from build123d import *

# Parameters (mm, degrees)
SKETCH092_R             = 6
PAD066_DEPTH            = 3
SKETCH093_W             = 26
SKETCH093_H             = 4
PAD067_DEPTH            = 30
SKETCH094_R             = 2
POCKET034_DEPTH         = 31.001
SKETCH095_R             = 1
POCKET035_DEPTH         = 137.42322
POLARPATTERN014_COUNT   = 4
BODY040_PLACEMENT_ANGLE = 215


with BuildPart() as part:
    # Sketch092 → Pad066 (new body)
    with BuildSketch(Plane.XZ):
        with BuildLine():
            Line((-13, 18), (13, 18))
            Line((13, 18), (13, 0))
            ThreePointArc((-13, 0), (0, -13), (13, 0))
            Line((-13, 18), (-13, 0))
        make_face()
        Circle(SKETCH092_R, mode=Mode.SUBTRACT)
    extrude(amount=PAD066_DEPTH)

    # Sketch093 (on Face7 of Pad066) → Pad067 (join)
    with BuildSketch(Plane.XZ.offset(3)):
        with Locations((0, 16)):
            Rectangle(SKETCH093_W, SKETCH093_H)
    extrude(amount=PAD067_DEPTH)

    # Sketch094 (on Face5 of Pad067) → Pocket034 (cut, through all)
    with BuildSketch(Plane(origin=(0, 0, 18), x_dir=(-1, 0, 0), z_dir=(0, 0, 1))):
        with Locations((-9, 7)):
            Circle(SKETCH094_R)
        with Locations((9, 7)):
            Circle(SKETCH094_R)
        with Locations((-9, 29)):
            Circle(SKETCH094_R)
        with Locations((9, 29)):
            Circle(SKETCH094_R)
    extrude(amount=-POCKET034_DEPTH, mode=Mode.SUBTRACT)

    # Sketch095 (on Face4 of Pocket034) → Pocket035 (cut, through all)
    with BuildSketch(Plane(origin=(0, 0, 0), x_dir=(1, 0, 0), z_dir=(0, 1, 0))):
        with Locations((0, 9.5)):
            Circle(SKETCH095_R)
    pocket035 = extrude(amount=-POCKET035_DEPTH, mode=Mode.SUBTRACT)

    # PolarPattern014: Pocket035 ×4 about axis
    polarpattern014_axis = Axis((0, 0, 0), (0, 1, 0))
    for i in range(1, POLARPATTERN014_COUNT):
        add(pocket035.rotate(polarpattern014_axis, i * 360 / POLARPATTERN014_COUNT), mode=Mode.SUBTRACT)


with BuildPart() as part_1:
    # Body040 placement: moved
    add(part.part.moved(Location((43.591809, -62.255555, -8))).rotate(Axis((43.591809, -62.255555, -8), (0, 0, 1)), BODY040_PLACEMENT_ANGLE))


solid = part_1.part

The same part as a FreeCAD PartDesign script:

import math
import FreeCAD as App
import Part
import Sketcher
Q = App.Units.Quantity

doc = App.newDocument("Part")
body = doc.addObject("PartDesign::Body", "Body")

# Sketch on XZ plane
sketch1 = body.newObject("Sketcher::SketchObject", "Sketch")
sketch1.AttachmentSupport = (doc.getObject("XZ_Plane"), [""])
sketch1.MapMode = "FlatFace"
sketch1.addGeometry(Part.LineSegment(App.Vector(13, 18, 0), App.Vector(-13, 18, 0)), False)
sketch1.addGeometry(Part.LineSegment(App.Vector(-13, 18, 0), App.Vector(-13, 0, 0)), False)
sketch1.addGeometry(Part.ArcOfCircle(Part.Circle(App.Vector(0, 0, 0), App.Vector(0, 0, 1), 13), math.radians(180), math.radians(360)), False)
sketch1.addGeometry(Part.LineSegment(App.Vector(13, 0, 0), App.Vector(13, 18, 0)), False)
sketch1.addGeometry(Part.Circle(App.Vector(0, 0, 0), App.Vector(0, 0, 1), 6), False)
sketch1.addConstraint(Sketcher.Constraint("Coincident", 0, 2, 1, 1))
sketch1.addConstraint(Sketcher.Constraint("Tangent", 1, 2, 2, 1))
sketch1.addConstraint(Sketcher.Constraint("Tangent", 2, 2, 3, 1))
sketch1.addConstraint(Sketcher.Constraint("Coincident", 3, 2, 0, 1))
sketch1.addConstraint(Sketcher.Constraint("Horizontal", 0))
sketch1.addConstraint(Sketcher.Constraint("Vertical", 1))
sketch1.addConstraint(Sketcher.Constraint("Vertical", 3))
sketch1.addConstraint(Sketcher.Constraint("Coincident", 2, 3, -1, 1))
sketch1.addConstraint(Sketcher.Constraint("Coincident", 4, 3, -1, 1))
sketch1.addConstraint(Sketcher.Constraint("Diameter", 4, Q("12 mm")))
sketch1.addConstraint(Sketcher.Constraint("Radius", 2, Q("13 mm")))
sketch1.addConstraint(Sketcher.Constraint("DistanceY", 1, 2, 1, 1, Q("18 mm")))
pad1 = body.newObject("PartDesign::Pad", "Pad")
pad1.Profile = sketch1
pad1.Length = 3

# Sketch on XZ plane
sketch2 = body.newObject("Sketcher::SketchObject", "Sketch001")
sketch2.AttachmentSupport = (doc.getObject("XZ_Plane"), [""])
sketch2.MapMode = "FlatFace"
sketch2.AttachmentOffset = App.Placement(App.Vector(0, 0, 3), App.Rotation())
sketch2.addGeometry(Part.LineSegment(App.Vector(-13, 18, 0), App.Vector(-13, 14, 0)), False)
sketch2.addGeometry(Part.LineSegment(App.Vector(-13, 14, 0), App.Vector(13, 14, 0)), False)
sketch2.addGeometry(Part.LineSegment(App.Vector(13, 14, 0), App.Vector(13, 18, 0)), False)
sketch2.addGeometry(Part.LineSegment(App.Vector(13, 18, 0), App.Vector(-13, 18, 0)), False)
sketch2.addConstraint(Sketcher.Constraint("Coincident", 0, 2, 1, 1))
sketch2.addConstraint(Sketcher.Constraint("Coincident", 1, 2, 2, 1))
sketch2.addConstraint(Sketcher.Constraint("Coincident", 2, 2, 3, 1))
sketch2.addConstraint(Sketcher.Constraint("Coincident", 3, 2, 0, 1))
sketch2.addConstraint(Sketcher.Constraint("Vertical", 0))
sketch2.addConstraint(Sketcher.Constraint("Horizontal", 1))
sketch2.addConstraint(Sketcher.Constraint("Vertical", 2))
sketch2.addConstraint(Sketcher.Constraint("Horizontal", 3))
sketch2.addConstraint(Sketcher.Constraint("DistanceX", 1, 1, 1, 2, Q("26 mm")))
sketch2.addConstraint(Sketcher.Constraint("DistanceY", 0, 2, 0, 1, Q("4 mm")))
sketch2.addConstraint(Sketcher.Constraint("DistanceX", 0, 2, -1, 1, Q("13 mm")))
sketch2.addConstraint(Sketcher.Constraint("DistanceY", -1, 1, 0, 2, Q("14 mm")))
pad2 = body.newObject("PartDesign::Pad", "Pad001")
pad2.Profile = sketch2
pad2.Length = 30

# Sketch on XY plane
sketch3 = body.newObject("Sketcher::SketchObject", "Sketch002")
sketch3.AttachmentSupport = (doc.getObject("XY_Plane"), [""])
sketch3.MapMode = "FlatFace"
sketch3.AttachmentOffset = App.Placement(App.Vector(0, 0, 18), App.Rotation())
sketch3.addGeometry(Part.Circle(App.Vector(9, -7, 0), App.Vector(0, 0, 1), 2), False)
sketch3.addGeometry(Part.Circle(App.Vector(-9, -7, 0), App.Vector(0, 0, 1), 2), False)
sketch3.addGeometry(Part.Circle(App.Vector(9, -29, 0), App.Vector(0, 0, 1), 2), False)
sketch3.addGeometry(Part.Circle(App.Vector(-9, -29, 0), App.Vector(0, 0, 1), 2), False)
sketch3.addConstraint(Sketcher.Constraint("Equal", 0, 1))
sketch3.addConstraint(Sketcher.Constraint("Equal", 1, 2))
sketch3.addConstraint(Sketcher.Constraint("Equal", 2, 3))
sketch3.addConstraint(Sketcher.Constraint("Symmetric", 0, 3, 1, 3, -2))
sketch3.addConstraint(Sketcher.Constraint("Symmetric", 2, 3, 3, 3, -2))
sketch3.addConstraint(Sketcher.Constraint("Vertical", 0, 3, 2, 3))
sketch3.addConstraint(Sketcher.Constraint("Diameter", 0, Q("4 mm")))
sketch3.addConstraint(Sketcher.Constraint("DistanceX", -1, 1, 0, 3, Q("9 mm")))
sketch3.addConstraint(Sketcher.Constraint("DistanceY", 0, 3, -1, 1, Q("7 mm")))
sketch3.addConstraint(Sketcher.Constraint("DistanceY", 2, 3, -1, 1, Q("29 mm")))
pocket1 = body.newObject("PartDesign::Pocket", "Pocket")
pocket1.Profile = sketch3
pocket1.Type = "ThroughAll"

# Sketch on XZ plane
sketch4 = body.newObject("Sketcher::SketchObject", "Sketch003")
sketch4.AttachmentSupport = (doc.getObject("XZ_Plane"), [""])
sketch4.MapMode = "FlatFace"
sketch4.addGeometry(Part.Circle(App.Vector(0, -9.5, 0), App.Vector(0, 0, 1), 1), False)
sketch4.addConstraint(Sketcher.Constraint("PointOnObject", 0, 3, -2))
sketch4.addConstraint(Sketcher.Constraint("Diameter", 0, Q("2 mm")))
sketch4.addConstraint(Sketcher.Constraint("DistanceY", 0, 3, -1, 1, Q("9.5 mm")))
pocket2 = body.newObject("PartDesign::Pocket", "Pocket001")
pocket2.Profile = sketch4
pocket2.Type = "ThroughAll"
pocket2.Reversed = True
doc.recompute()

polarpattern = body.newObject("PartDesign::PolarPattern", "PolarPattern")
polarpattern.Originals = [pocket2]
polarpattern.Axis = (doc.getObject("Y_Axis"), [""])
polarpattern.Angle = 360
polarpattern.Occurrences = 4
body.Tip = polarpattern
body2 = doc.addObject("PartDesign::Body", "Body001")
doc.recompute()

body.Placement = App.Placement(App.Vector(43.591809, -62.255555, -8), App.Rotation(App.Vector(0, 0, 1), 215))
boolean = body2.newObject("PartDesign::Boolean", "Boolean")
boolean.Type = "Fuse"
boolean.addObjects([body])

doc.recompute()
